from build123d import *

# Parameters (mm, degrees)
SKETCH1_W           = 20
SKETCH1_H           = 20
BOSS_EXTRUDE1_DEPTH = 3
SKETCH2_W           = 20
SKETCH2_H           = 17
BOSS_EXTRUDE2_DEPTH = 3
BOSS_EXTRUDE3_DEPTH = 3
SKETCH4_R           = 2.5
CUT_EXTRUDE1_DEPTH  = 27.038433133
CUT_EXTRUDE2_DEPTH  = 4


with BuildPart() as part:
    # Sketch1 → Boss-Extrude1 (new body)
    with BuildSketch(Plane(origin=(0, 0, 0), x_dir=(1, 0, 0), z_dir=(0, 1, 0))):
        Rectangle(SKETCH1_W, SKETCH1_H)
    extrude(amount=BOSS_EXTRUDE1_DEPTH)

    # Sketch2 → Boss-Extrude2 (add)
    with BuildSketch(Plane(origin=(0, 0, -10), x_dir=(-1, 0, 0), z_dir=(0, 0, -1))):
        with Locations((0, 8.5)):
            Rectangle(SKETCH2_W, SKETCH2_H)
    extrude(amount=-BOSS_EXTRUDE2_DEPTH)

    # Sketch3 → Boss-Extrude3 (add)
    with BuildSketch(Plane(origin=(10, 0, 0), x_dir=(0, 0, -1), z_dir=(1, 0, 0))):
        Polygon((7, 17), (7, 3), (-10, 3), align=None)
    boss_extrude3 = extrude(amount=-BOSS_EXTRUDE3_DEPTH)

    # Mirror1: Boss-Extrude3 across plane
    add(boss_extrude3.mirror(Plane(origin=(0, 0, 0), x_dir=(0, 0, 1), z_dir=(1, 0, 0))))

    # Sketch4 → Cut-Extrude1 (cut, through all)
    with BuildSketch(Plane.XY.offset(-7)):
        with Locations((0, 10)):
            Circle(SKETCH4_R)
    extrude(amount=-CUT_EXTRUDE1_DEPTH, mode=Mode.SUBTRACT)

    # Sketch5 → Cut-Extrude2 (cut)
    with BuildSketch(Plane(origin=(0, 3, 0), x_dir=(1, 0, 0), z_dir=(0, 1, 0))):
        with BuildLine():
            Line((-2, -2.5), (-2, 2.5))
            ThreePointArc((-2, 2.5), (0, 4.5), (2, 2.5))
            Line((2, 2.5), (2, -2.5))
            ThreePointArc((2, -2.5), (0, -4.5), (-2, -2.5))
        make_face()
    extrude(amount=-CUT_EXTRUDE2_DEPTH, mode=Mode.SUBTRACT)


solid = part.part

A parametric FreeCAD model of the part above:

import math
import FreeCAD as App
import Part
import Sketcher
Q = App.Units.Quantity


def add_polygon(sketch, points):
    """Adds a closed chain of lines whose ends are joined by coincident constraints."""
    first, n = sketch.GeometryCount, len(points)
    for a, b in zip(points, points[1:] + points[:1]):
        sketch.addGeometry(Part.LineSegment(App.Vector(*a, 0), App.Vector(*b, 0)), False)
    for i in range(n):
        sketch.addConstraint(Sketcher.Constraint("Coincident", first + i, 2, first + (i + 1) % n, 1))

doc = App.newDocument("Part")
body = doc.addObject("PartDesign::Body", "Body")

sketch1 = doc.addObject("Sketcher::SketchObject", "Sketch")
body.addObject(sketch1)
sketch1.AttachmentSupport = (doc.XZ_Plane, [""])
sketch1.MapMode = "FlatFace"
add_polygon(sketch1, [(-10, -10), (-10, 10), (10, 10), (10, -10)])
sketch1.addConstraint([
    Sketcher.Constraint("Vertical", 0),
    Sketcher.Constraint("Horizontal", 1),
    Sketcher.Constraint("Vertical", 2),
    Sketcher.Constraint("Horizontal", 3),
    Sketcher.Constraint("Symmetric", 0, 2, 2, 2, -1, 1),
    Sketcher.Constraint("Equal", 3, 0),
    Sketcher.Constraint("DistanceX", 1, 1, 1, 2, Q("20 mm")),
])
pad1 = doc.addObject("PartDesign::Pad", "Pad")
body.addObject(pad1)
pad1.Profile = sketch1
pad1.Length = 3
pad1.Reversed = True

sketch2 = doc.addObject("Sketcher::SketchObject", "Sketch001")
body.addObject(sketch2)
sketch2.AttachmentSupport = (doc.XY_Plane, [""])
sketch2.MapMode = "FlatFace"
sketch2.AttachmentOffset = App.Placement(App.Vector(0, 0, -10), App.Rotation())
add_polygon(sketch2, [(10, 17), (10, 0), (-10, 0), (-10, 17)])
sketch2.addConstraint([
    Sketcher.Constraint("Vertical", 0),
    Sketcher.Constraint("Horizontal", 1),
    Sketcher.Constraint("Vertical", 2),
    Sketcher.Constraint("Horizontal", 3),
    Sketcher.Constraint("Symmetric", 0, 2, 1, 2, -1, 1),
    Sketcher.Constraint("DistanceX", 1, 2, 1, 1, Q("20 mm")),
    Sketcher.Constraint("DistanceY", 0, 2, 0, 1, Q("17 mm")),
])
pad2 = doc.addObject("PartDesign::Pad", "Pad001")
body.addObject(pad2)
pad2.Profile = sketch2
pad2.Length = 3

sketch3 = doc.addObject("Sketcher::SketchObject", "Sketch002")
body.addObject(sketch3)
sketch3.AttachmentSupport = (doc.YZ_Plane, [""])
sketch3.MapMode = "FlatFace"
sketch3.AttachmentOffset = App.Placement(App.Vector(0, 0, 10), App.Rotation())
add_polygon(sketch3, [(3, -7), (17, -7), (3, 10)])
sketch3.addConstraint([
    Sketcher.Constraint("Horizontal", 0),
    Sketcher.Constraint("Vertical", 2),
    Sketcher.Constraint("DistanceX", 0, 1, 0, 2, Q("14 mm")),
    Sketcher.Constraint("DistanceY", 2, 2, 2, 1, Q("17 mm")),
    Sketcher.Constraint("DistanceX", -1, 1, 0, 2, Q("17 mm")),
    Sketcher.Constraint("DistanceY", 0, 2, -1, 1, Q("7 mm")),
])
pad3 = doc.addObject("PartDesign::Pad", "Pad002")
body.addObject(pad3)
pad3.Profile = sketch3
pad3.Length = 3
pad3.Reversed = True
doc.recompute()

mirrored = doc.addObject("PartDesign::Mirrored", "Mirrored")
body.addObject(mirrored)
mirrored.Originals = [pad3]
mirrored.MirrorPlane = (doc.YZ_Plane, [""])
body.Tip = mirrored

sketch4 = doc.addObject("Sketcher::SketchObject", "Sketch003")
body.addObject(sketch4)
sketch4.AttachmentSupport = (doc.XY_Plane, [""])
sketch4.MapMode = "FlatFace"
sketch4.AttachmentOffset = App.Placement(App.Vector(0, 0, -7), App.Rotation())
sketch4.addGeometry(Part.Circle(App.Vector(0, 10, 0), App.Vector(0, 0, 1), 2.5), False)
sketch4.addConstraint([
    Sketcher.Constraint("PointOnObject", 0, 3, -2),
    Sketcher.Constraint("Diameter", 0, Q("5 mm")),
    Sketcher.Constraint("DistanceY", -1, 1, 0, 3, Q("10 mm")),
])
pocket1 = doc.addObject("PartDesign::Pocket", "Pocket")
body.addObject(pocket1)
pocket1.Profile = sketch4
pocket1.Type = "ThroughAll"

sketch5 = doc.addObject("Sketcher::SketchObject", "Sketch004")
body.addObject(sketch5)
sketch5.AttachmentSupport = (doc.XZ_Plane, [""])
sketch5.MapMode = "FlatFace"
sketch5.AttachmentOffset = App.Placement(App.Vector(0, 0, -3), App.Rotation())
sketch5.addGeometry([
    Part.LineSegment(App.Vector(-2, -2.5, 0), App.Vector(-2, 2.5, 0)),
    Part.ArcOfCircle(Part.Circle(App.Vector(0, 2.5, 0), App.Vector(0, 0, 1), 2), math.radians(0), math.radians(180)),
    Part.LineSegment(App.Vector(2, 2.5, 0), App.Vector(2, -2.5, 0)),
    Part.ArcOfCircle(Part.Circle(App.Vector(0, -2.5, 0), App.Vector(0, 0, 1), 2), math.radians(180), math.radians(360)),
], False)
sketch5.addConstraint([
    Sketcher.Constraint("Tangent", 0, 2, 1, 2),
    Sketcher.Constraint("Tangent", 1, 1, 2, 1),
    Sketcher.Constraint("Tangent", 2, 2, 3, 2),
    Sketcher.Constraint("Tangent", 3, 1, 0, 1),
    Sketcher.Constraint("Vertical", 0),
    Sketcher.Constraint("Vertical", 2),
    Sketcher.Constraint("Symmetric", 1, 3, 3, 3, -1, 1),
    Sketcher.Constraint("Radius", 1, Q("2 mm")),
    Sketcher.Constraint("DistanceY", 0, 1, 0, 2, Q("5 mm")),
])
pocket2 = doc.addObject("PartDesign::Pocket", "Pocket001")
body.addObject(pocket2)
pocket2.Profile = sketch5
pocket2.Length = 4
pocket2.Reversed = True

doc.recompute()
